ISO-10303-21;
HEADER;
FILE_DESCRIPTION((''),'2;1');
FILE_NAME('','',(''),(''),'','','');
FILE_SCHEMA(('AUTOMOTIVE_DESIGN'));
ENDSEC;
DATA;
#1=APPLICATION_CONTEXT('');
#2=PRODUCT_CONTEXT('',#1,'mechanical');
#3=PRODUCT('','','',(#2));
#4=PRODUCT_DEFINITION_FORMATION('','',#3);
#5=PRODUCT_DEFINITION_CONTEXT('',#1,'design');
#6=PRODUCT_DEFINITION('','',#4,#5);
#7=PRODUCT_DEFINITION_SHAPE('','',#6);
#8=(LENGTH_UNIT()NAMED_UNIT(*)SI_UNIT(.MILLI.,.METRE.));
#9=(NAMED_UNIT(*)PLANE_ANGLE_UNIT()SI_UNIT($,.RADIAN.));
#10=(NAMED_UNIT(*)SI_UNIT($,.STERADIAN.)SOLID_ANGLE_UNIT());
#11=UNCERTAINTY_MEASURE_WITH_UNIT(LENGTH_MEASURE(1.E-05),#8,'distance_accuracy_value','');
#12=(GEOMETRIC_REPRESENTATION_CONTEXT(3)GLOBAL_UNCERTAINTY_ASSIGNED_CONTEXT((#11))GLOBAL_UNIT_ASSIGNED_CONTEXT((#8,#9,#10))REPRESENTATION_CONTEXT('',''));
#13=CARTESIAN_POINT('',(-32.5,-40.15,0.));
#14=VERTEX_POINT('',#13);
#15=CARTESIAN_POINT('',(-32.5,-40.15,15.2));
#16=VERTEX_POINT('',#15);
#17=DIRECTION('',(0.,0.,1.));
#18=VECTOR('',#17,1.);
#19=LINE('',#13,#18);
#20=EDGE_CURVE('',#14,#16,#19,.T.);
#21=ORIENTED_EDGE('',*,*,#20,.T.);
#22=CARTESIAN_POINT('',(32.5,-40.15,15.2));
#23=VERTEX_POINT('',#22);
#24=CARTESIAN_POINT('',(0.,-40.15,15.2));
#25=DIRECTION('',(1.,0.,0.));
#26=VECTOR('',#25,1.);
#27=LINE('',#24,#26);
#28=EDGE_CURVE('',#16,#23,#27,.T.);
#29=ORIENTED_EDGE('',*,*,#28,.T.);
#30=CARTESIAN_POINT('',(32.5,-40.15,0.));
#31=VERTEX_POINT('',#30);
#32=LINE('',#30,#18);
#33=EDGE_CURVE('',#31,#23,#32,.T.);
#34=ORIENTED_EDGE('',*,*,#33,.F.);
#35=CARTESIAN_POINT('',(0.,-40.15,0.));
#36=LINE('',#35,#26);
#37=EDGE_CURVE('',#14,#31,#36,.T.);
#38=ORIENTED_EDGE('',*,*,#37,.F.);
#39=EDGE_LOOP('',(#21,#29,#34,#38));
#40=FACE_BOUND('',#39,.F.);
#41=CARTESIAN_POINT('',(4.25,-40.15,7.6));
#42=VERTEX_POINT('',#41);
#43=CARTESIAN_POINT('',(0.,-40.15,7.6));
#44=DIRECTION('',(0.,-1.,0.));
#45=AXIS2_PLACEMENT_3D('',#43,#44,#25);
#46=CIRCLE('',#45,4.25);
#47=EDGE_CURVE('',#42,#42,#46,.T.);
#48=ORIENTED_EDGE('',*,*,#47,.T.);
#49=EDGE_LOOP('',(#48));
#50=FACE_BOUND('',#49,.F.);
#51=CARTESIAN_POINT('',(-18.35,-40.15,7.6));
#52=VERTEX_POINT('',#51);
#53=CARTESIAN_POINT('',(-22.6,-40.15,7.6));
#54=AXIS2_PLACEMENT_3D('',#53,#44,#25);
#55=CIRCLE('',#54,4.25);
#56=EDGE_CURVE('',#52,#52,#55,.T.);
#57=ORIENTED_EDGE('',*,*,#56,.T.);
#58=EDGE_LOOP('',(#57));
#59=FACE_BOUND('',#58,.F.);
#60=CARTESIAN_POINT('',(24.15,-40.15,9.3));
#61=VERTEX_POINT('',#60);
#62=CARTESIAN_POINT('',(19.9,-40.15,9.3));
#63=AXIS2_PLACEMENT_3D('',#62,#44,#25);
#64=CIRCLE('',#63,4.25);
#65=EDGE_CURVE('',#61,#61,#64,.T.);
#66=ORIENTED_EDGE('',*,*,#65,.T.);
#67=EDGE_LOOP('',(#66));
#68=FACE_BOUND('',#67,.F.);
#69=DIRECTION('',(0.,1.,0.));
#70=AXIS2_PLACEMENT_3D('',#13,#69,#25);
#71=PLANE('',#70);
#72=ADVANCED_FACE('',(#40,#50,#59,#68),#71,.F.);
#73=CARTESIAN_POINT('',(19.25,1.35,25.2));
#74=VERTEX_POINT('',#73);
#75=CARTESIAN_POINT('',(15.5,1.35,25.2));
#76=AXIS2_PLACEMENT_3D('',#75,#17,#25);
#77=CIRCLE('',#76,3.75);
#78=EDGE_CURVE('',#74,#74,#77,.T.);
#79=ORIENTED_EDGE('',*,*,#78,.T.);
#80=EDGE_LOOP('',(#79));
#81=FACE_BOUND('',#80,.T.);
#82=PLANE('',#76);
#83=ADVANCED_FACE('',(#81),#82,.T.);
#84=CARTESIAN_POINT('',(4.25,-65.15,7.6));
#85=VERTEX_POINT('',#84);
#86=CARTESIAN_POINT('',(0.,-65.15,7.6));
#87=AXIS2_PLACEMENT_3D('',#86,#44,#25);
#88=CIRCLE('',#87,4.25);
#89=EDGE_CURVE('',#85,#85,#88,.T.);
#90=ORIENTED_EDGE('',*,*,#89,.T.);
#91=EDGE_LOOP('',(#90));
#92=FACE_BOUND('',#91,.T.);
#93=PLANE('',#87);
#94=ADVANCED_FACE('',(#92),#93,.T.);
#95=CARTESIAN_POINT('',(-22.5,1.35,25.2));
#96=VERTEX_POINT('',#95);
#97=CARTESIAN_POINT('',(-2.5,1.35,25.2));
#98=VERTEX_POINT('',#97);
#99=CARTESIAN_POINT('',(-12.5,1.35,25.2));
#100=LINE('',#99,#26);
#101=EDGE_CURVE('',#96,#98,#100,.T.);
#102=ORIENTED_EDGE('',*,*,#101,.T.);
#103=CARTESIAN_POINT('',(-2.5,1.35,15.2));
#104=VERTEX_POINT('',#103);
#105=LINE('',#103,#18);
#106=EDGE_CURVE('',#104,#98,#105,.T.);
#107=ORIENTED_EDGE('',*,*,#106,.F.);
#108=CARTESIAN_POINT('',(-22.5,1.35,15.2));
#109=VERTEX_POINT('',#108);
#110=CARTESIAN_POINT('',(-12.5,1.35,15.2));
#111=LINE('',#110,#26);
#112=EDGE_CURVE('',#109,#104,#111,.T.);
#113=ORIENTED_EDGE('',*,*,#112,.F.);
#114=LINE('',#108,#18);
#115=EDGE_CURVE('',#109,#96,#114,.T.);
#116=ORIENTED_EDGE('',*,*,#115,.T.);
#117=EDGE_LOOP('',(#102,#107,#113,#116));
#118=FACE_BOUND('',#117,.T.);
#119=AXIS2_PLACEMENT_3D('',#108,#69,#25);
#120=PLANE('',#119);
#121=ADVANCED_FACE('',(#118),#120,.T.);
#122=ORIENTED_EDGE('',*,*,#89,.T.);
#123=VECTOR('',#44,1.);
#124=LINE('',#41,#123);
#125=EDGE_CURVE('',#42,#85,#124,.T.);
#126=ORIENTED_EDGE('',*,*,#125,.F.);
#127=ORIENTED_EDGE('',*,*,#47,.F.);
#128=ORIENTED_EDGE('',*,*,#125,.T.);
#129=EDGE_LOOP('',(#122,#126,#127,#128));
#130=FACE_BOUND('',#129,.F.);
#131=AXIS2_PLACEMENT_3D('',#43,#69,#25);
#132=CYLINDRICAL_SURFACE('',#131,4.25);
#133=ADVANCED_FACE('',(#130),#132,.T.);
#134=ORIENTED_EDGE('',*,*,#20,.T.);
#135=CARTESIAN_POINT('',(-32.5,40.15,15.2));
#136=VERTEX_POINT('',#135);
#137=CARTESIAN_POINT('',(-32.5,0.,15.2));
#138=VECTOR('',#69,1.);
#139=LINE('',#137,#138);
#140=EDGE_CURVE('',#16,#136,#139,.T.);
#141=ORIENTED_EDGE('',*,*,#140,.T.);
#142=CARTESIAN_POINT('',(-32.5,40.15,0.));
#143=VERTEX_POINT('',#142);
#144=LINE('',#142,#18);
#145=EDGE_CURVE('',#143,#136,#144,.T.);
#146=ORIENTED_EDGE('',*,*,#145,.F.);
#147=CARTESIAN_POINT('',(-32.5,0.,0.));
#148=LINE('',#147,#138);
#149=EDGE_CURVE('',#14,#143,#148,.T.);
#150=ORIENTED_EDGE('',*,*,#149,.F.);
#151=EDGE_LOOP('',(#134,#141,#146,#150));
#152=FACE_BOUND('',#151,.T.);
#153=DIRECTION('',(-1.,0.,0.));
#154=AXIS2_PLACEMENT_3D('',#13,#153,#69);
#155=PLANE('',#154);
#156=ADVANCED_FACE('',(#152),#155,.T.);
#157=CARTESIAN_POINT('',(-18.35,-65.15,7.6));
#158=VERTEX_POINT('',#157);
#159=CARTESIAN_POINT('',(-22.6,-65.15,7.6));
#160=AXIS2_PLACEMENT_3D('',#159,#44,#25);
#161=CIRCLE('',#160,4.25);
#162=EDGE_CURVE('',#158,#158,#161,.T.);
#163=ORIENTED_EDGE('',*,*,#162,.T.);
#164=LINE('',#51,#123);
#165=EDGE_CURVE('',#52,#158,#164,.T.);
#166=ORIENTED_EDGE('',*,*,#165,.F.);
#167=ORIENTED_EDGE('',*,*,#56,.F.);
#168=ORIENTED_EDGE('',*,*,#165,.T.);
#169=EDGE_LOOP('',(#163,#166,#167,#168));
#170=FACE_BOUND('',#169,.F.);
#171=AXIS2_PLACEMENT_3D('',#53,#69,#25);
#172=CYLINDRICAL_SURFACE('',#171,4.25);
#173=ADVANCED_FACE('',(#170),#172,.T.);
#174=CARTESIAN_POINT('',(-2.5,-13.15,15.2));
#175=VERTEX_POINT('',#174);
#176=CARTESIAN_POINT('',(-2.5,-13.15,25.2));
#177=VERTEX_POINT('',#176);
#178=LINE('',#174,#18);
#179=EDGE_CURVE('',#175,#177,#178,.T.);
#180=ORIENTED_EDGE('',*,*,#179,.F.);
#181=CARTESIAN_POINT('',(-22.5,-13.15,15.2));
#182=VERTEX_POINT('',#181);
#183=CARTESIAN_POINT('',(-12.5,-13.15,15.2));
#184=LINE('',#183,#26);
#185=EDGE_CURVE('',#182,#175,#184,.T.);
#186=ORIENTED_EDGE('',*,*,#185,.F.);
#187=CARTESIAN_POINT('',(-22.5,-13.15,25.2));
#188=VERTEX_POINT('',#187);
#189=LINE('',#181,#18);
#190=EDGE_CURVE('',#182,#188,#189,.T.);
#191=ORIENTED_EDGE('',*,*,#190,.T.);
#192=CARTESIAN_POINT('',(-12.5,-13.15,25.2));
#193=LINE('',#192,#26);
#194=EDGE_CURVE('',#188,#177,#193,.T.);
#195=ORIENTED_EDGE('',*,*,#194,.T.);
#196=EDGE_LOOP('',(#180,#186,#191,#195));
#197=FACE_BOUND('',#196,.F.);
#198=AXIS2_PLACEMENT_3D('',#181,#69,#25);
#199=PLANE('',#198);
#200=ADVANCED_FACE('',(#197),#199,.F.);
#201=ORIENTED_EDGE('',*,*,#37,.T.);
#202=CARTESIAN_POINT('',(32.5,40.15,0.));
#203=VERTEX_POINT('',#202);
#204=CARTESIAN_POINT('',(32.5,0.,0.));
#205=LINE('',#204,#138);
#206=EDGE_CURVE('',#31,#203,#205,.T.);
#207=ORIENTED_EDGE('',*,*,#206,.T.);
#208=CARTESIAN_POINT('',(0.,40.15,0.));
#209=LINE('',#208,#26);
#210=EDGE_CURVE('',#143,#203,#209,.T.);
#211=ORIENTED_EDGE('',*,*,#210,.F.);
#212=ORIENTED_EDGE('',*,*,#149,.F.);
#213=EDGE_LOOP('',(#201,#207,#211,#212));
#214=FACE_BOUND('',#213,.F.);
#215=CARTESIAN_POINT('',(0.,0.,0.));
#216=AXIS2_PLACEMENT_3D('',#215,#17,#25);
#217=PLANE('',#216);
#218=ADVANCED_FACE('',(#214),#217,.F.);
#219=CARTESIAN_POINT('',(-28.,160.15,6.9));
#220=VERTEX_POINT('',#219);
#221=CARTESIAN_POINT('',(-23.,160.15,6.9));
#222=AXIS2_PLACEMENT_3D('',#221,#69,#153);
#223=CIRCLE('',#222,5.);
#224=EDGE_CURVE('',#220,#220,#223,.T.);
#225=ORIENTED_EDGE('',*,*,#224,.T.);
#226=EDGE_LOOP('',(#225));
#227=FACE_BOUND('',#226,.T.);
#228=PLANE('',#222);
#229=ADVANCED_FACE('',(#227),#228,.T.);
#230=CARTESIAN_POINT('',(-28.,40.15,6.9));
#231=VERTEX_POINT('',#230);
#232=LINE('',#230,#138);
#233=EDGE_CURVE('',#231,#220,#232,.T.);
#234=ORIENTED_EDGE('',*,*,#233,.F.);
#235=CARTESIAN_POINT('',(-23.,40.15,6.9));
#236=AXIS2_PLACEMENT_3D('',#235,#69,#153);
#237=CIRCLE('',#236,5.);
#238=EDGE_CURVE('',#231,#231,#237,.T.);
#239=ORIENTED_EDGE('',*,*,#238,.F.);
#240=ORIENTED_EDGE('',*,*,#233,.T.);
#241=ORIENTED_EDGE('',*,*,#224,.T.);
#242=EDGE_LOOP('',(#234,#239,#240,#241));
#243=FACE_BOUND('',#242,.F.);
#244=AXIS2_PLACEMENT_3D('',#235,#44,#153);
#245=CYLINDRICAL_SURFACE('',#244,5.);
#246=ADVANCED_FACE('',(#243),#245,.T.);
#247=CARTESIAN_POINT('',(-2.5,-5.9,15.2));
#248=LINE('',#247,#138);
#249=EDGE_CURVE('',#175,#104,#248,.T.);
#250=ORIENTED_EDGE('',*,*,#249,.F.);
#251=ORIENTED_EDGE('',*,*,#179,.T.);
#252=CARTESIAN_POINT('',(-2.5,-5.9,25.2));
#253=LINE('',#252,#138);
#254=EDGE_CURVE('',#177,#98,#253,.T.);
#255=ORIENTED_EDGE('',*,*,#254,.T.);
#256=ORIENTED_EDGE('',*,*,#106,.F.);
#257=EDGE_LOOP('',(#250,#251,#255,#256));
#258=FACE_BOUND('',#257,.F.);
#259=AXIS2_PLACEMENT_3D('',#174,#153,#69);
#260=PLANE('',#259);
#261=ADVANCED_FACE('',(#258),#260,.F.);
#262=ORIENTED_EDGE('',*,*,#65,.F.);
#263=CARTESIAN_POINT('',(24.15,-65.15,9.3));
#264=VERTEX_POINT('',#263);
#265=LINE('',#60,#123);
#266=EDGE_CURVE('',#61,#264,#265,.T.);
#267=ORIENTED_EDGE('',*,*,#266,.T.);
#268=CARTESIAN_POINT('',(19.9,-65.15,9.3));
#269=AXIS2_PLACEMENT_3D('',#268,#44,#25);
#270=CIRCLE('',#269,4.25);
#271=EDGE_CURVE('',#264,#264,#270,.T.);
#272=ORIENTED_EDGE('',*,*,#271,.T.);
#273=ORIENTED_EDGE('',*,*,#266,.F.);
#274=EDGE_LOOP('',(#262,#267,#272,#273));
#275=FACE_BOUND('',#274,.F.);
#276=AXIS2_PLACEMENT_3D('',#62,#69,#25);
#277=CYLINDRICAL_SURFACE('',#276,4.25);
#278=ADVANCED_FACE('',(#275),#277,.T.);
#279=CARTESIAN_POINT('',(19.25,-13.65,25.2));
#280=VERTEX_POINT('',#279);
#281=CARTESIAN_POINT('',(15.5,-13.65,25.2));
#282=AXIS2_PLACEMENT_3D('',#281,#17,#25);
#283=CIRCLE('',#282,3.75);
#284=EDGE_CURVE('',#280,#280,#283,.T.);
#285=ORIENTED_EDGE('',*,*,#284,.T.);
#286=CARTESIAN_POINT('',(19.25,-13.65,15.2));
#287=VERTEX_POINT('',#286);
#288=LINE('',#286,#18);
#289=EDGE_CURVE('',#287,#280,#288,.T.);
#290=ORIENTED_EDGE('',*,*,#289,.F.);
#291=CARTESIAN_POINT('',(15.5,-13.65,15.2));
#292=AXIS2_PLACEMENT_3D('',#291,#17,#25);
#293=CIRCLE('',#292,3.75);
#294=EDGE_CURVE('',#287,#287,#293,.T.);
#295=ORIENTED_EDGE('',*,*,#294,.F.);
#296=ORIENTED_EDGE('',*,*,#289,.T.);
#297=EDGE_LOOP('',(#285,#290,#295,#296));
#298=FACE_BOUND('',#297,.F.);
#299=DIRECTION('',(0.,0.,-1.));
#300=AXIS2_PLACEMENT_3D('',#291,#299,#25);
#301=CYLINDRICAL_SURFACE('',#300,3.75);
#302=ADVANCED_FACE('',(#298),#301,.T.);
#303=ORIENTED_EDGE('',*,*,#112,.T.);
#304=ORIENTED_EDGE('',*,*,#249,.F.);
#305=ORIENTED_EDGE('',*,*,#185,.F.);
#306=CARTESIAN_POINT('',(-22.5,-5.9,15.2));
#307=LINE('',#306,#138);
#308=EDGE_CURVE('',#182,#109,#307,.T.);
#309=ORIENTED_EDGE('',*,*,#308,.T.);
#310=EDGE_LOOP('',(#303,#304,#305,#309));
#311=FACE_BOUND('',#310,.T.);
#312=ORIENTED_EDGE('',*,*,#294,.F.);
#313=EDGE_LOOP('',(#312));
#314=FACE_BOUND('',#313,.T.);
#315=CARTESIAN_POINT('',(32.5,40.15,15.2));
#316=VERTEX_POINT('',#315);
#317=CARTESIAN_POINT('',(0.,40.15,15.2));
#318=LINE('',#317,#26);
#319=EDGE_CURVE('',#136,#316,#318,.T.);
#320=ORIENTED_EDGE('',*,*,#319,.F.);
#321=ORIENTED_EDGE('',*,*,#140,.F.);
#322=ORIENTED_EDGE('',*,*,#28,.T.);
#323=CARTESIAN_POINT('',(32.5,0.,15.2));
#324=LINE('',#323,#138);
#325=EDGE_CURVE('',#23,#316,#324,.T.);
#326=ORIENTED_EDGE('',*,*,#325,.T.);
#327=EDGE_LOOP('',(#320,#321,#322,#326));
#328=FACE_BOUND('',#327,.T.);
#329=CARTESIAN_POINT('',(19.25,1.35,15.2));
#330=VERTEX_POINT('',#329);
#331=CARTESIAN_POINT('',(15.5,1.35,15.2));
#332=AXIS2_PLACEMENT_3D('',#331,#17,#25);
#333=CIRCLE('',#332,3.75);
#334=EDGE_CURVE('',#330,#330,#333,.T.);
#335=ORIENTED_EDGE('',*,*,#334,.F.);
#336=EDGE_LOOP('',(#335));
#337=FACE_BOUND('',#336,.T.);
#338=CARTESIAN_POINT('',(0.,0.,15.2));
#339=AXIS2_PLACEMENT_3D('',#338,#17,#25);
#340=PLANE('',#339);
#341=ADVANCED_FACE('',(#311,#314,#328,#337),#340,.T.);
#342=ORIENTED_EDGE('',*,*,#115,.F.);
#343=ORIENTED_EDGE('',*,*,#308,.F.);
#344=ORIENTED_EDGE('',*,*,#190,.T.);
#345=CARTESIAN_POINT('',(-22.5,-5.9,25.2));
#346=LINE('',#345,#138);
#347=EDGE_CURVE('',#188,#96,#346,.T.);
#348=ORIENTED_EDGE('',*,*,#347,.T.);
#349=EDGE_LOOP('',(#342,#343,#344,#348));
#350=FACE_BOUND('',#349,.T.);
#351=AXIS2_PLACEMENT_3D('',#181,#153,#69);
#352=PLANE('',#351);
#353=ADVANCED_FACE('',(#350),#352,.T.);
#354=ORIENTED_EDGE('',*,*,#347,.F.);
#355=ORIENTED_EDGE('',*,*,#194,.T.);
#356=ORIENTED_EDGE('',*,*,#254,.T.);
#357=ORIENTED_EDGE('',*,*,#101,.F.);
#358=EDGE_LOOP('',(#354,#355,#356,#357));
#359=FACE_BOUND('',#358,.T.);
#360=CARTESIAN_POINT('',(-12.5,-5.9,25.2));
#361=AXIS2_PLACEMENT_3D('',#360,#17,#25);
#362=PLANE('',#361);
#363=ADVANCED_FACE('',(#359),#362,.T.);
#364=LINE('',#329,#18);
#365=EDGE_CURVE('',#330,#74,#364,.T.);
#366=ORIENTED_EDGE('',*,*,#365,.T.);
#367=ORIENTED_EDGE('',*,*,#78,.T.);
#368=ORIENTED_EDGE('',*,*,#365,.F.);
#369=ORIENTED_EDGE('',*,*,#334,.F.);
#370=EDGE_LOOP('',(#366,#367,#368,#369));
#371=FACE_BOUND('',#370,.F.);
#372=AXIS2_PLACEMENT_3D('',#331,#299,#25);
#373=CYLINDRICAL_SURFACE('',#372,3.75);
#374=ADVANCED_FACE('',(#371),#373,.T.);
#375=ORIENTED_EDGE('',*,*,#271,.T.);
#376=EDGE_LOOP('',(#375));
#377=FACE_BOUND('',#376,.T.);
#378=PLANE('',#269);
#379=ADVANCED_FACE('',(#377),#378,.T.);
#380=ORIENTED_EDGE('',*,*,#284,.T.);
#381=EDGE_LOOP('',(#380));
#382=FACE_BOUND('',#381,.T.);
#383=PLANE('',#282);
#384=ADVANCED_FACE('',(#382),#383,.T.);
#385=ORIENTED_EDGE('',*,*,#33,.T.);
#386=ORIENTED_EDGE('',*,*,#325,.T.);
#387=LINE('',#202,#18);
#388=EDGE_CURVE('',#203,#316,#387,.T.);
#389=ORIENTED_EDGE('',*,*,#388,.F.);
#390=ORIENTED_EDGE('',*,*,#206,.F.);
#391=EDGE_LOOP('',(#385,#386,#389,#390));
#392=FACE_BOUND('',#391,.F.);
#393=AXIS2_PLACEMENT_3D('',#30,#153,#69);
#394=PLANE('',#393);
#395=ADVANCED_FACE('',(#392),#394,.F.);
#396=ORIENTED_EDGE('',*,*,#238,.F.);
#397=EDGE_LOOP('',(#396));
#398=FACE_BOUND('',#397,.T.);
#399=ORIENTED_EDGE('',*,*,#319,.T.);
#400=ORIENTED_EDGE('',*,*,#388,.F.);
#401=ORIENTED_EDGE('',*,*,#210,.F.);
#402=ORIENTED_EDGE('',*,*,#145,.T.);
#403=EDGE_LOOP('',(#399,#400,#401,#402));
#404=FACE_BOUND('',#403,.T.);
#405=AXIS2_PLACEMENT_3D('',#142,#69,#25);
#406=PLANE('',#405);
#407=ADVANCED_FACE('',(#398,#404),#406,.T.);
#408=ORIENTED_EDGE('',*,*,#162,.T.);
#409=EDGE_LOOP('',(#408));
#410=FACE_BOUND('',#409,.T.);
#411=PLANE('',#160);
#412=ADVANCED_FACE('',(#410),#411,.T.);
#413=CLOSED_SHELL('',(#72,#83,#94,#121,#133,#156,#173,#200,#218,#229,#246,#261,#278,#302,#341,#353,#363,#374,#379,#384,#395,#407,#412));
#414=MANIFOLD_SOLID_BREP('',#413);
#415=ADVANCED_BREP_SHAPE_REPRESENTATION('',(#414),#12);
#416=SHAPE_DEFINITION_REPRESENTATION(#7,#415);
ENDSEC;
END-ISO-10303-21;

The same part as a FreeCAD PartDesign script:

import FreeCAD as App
import Part
import Sketcher

V = App.Vector

doc = App.newDocument("Part")
body = doc.addObject("PartDesign::Body", "Body")

sketch1 = body.newObject("Sketcher::SketchObject", "Sketch")
sketch1.AttachmentSupport = (doc.getObject("XY_Plane"), [""])
sketch1.MapMode = "FlatFace"
sketch1.addGeometry([
    Part.LineSegment(V(-32, 40, 0), V(-32, -40, 0)),
    Part.LineSegment(V(-32, -40, 0), V(32, -40, 0)),
    Part.LineSegment(V(32, -40, 0), V(32, 40, 0)),
    Part.LineSegment(V(32, 40, 0), V(-32, 40, 0)),
], False)
sketch1.addConstraint([
    Sketcher.Constraint("Coincident", 0, 2, 1, 1),
    Sketcher.Constraint("Coincident", 1, 2, 2, 1),
    Sketcher.Constraint("Coincident", 2, 2, 3, 1),
    Sketcher.Constraint("Coincident", 3, 2, 0, 1),
    Sketcher.Constraint("Vertical", 0),
    Sketcher.Constraint("Horizontal", 1),
    Sketcher.Constraint("Vertical", 2),
    Sketcher.Constraint("Horizontal", 3),
    Sketcher.Constraint("Symmetric", 0, 2, 2, 2, -1, 1),
    Sketcher.Constraint("DistanceX", 1, 1, 1, 2, 65.0),
    Sketcher.Constraint("DistanceY", 0, 2, 0, 1, 80.3),
])
pad1 = body.newObject("PartDesign::Pad", "Pad")
pad1.Profile = sketch1
pad1.Length = 15.2

sketch2 = body.newObject("Sketcher::SketchObject", "Sketch001")
sketch2.AttachmentSupport = (doc.getObject("XZ_Plane"), [""])
sketch2.MapMode = "FlatFace"
sketch2.AttachmentOffset = App.Placement(V(0, 0, -40.15), App.Rotation())
sketch2.addGeometry(Part.Circle(V(-23, 7, 0), V(0, 0, 1), 5), False)
sketch2.addConstraint([
    Sketcher.Constraint("Diameter", 0, 10.0),
    Sketcher.Constraint("DistanceX", 0, 3, -1, 1, 23.0),
    Sketcher.Constraint("DistanceY", -1, 1, 0, 3, 6.9),
])
pad2 = body.newObject("PartDesign::Pad", "Pad001")
pad2.Profile = sketch2
pad2.Length = 120
pad2.Reversed = True

sketch3 = body.newObject("Sketcher::SketchObject", "Sketch002")
sketch3.AttachmentSupport = (doc.getObject("XZ_Plane"), [""])
sketch3.MapMode = "FlatFace"
sketch3.AttachmentOffset = App.Placement(V(0, 0, 40.15), App.Rotation())
sketch3.addGeometry([
    Part.Circle(V(-22.6, 7.6, 0), V(0, 0, 1), 4.2),
    Part.Circle(V(0, 7.6, 0), V(0, 0, 1), 4.2),
    Part.Circle(V(19.9, 9.3, 0), V(0, 0, 1), 4.2),
], False)
sketch3.addConstraint([
    Sketcher.Constraint("Equal", 0, 1),
    Sketcher.Constraint("Equal", 1, 2),
    Sketcher.Constraint("PointOnObject", 1, 3, -2),
    Sketcher.Constraint("Horizontal", 0, 3, 1, 3),
    Sketcher.Constraint("Diameter", 0, 8.5),
    Sketcher.Constraint("DistanceX", 0, 3, -1, 1, 22.6),
    Sketcher.Constraint("DistanceY", -1, 1, 0, 3, 7.6),
    Sketcher.Constraint("DistanceX", -1, 1, 2, 3, 19.9),
    Sketcher.Constraint("DistanceY", -1, 1, 2, 3, 9.3),
])
pad3 = body.newObject("PartDesign::Pad", "Pad002")
pad3.Profile = sketch3
pad3.Length = 25

sketch4 = body.newObject("Sketcher::SketchObject", "Sketch003")
sketch4.AttachmentSupport = (doc.getObject("XY_Plane"), [""])
sketch4.MapMode = "FlatFace"
sketch4.AttachmentOffset = App.Placement(V(0, 0, 15.2), App.Rotation())
sketch4.addGeometry([
    Part.LineSegment(V(-22.5, 1.4, 0), V(-22.5, -13.2, 0)),
    Part.LineSegment(V(-22.5, -13.2, 0), V(-2.5, -13.2, 0)),
    Part.LineSegment(V(-2.5, -13.2, 0), V(-2.5, 1.4, 0)),
    Part.LineSegment(V(-2.5, 1.4, 0), V(-22.5, 1.4, 0)),
    Part.Circle(V(15.5, 1.4, 0), V(0, 0, 1), 3.8),
    Part.Circle(V(15.5, -13.7, 0), V(0, 0, 1), 3.8),
], False)
sketch4.addConstraint([
    Sketcher.Constraint("Coincident", 0, 2, 1, 1),
    Sketcher.Constraint("Coincident", 1, 2, 2, 1),
    Sketcher.Constraint("Coincident", 2, 2, 3, 1),
    Sketcher.Constraint("Coincident", 3, 2, 0, 1),
    Sketcher.Constraint("Vertical", 0),
    Sketcher.Constraint("Horizontal", 1),
    Sketcher.Constraint("Vertical", 2),
    Sketcher.Constraint("Horizontal", 3),
    Sketcher.Constraint("Equal", 4, 5),
    Sketcher.Constraint("Horizontal", 4, 3, 2, 2),
    Sketcher.Constraint("Vertical", 4, 3, 5, 3),
    Sketcher.Constraint("Diameter", 4, 7.5),
    Sketcher.Constraint("DistanceX", 1, 1, 1, 2, 20.0),
    Sketcher.Constraint("DistanceY", 0, 2, 0, 1, 14.5),
    Sketcher.Constraint("DistanceY", 5, 3, 4, 3, 15.0),
    Sketcher.Constraint("DistanceX", 0, 2, 5, 3, 38.0),
    Sketcher.Constraint("DistanceX", -1, 1, 4, 3, 15.5),
    Sketcher.Constraint("DistanceY", -1, 1, 4, 3, 1.35),
])
pad4 = body.newObject("PartDesign::Pad", "Pad003")
pad4.Profile = sketch4
pad4.Length = 10

doc.recompute()
